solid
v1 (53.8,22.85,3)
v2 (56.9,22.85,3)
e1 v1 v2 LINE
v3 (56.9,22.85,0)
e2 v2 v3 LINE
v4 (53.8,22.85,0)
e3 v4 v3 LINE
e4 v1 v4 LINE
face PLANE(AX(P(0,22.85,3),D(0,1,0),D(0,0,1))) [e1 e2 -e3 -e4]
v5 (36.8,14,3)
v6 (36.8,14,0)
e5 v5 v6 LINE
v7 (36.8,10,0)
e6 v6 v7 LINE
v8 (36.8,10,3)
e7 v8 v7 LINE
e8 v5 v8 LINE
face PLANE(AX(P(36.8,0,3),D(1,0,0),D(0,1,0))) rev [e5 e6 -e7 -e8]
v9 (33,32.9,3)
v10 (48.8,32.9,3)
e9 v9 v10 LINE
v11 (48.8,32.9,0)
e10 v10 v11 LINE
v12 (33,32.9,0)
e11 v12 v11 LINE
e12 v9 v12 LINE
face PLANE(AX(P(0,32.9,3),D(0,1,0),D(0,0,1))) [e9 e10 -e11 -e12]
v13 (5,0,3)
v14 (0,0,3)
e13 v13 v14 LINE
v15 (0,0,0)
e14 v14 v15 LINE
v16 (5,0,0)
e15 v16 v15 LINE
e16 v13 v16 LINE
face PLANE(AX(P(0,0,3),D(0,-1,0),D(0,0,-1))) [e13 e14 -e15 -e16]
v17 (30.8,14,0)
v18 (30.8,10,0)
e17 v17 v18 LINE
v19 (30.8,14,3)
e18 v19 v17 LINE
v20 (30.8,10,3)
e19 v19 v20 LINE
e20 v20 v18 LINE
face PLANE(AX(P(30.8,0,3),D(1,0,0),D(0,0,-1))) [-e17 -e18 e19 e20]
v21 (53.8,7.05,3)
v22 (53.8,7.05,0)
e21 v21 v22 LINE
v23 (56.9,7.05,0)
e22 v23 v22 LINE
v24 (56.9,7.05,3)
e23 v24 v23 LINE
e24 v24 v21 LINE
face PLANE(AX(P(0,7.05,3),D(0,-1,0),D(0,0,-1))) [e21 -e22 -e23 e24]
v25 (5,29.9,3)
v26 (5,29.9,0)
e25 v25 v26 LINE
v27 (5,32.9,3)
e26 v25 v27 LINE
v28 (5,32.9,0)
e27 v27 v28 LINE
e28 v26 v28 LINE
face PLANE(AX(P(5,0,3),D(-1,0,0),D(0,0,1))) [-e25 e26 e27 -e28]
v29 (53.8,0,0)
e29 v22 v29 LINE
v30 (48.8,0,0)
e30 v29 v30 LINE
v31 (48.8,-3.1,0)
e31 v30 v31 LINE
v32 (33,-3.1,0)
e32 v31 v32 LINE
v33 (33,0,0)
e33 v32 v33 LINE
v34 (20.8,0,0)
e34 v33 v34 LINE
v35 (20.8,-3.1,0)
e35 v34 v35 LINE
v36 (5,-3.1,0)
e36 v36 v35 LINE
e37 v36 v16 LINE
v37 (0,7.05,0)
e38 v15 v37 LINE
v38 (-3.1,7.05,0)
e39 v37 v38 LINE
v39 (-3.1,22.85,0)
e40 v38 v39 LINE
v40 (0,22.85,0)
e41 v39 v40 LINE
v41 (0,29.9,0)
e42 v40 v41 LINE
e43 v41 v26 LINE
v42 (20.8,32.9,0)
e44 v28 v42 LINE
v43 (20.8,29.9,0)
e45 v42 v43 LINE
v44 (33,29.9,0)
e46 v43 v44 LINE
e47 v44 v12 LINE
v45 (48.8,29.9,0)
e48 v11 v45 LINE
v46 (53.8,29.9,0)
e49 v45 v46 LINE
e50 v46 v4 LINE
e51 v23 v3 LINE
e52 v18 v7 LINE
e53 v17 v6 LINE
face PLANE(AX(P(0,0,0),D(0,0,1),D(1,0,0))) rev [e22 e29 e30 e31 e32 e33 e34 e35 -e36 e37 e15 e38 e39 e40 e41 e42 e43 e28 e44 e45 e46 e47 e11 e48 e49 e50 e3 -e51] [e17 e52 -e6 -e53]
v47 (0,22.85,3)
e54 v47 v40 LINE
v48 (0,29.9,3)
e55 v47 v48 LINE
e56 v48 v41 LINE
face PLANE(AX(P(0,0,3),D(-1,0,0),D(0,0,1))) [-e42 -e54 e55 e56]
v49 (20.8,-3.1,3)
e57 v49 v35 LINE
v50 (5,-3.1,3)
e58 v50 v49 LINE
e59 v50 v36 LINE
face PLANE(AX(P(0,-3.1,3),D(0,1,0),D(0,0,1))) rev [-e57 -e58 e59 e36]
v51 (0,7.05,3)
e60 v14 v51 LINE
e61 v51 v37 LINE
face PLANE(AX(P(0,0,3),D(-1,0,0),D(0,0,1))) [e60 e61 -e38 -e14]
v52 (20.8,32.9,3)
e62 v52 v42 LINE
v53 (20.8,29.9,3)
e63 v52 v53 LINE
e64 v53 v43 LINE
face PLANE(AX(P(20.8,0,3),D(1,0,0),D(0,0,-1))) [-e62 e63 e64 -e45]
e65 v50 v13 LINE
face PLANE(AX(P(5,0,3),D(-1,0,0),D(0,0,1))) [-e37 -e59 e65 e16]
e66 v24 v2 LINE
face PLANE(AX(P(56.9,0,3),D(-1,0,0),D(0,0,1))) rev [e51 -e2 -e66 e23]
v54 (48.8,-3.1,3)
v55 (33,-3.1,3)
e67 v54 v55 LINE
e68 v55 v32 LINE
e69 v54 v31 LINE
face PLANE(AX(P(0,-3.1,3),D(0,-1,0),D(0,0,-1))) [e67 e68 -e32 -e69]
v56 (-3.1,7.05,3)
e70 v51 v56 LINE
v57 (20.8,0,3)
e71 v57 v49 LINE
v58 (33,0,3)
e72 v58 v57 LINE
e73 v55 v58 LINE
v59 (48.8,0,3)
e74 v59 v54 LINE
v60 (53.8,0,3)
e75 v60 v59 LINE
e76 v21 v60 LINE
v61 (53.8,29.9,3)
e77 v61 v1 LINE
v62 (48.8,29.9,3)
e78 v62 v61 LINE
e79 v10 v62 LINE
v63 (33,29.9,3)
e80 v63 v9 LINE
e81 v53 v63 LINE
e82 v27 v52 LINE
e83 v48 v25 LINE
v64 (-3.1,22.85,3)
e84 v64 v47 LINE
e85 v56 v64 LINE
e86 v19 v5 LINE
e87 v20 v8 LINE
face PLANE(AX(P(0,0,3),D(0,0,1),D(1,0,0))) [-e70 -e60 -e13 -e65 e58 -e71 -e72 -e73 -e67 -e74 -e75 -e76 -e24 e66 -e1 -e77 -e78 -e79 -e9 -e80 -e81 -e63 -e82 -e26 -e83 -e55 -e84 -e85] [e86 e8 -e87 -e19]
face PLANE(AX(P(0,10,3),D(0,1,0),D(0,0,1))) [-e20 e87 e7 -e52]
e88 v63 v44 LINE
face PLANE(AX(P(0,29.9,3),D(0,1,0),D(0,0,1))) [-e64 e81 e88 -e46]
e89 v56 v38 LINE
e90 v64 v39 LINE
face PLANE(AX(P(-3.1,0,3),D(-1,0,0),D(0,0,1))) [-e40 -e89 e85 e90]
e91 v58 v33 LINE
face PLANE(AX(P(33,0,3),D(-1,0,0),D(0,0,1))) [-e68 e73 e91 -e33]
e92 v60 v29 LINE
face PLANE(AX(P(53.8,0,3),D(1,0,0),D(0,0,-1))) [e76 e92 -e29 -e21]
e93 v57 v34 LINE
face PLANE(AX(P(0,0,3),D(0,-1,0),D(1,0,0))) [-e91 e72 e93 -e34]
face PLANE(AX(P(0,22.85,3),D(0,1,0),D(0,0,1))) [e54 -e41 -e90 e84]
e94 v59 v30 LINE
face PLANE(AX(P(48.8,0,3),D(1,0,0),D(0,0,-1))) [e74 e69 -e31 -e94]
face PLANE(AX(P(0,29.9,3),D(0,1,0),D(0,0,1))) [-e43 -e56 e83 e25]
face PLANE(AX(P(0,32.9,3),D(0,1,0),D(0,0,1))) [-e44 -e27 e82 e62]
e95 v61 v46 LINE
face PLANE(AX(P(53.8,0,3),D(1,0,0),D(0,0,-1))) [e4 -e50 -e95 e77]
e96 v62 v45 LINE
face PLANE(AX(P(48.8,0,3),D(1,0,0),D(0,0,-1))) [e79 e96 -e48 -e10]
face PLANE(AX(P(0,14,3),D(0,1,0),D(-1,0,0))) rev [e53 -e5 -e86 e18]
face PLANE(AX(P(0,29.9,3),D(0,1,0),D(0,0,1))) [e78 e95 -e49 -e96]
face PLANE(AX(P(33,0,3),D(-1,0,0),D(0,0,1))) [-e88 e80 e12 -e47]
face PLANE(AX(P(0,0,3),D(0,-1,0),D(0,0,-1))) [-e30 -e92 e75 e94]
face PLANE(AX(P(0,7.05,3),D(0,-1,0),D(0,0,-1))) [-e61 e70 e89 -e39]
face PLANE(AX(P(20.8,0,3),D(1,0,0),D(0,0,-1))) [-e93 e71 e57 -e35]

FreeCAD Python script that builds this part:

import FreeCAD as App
import Part
import Sketcher

V = App.Vector

doc = App.newDocument("Part")
body = doc.addObject("PartDesign::Body", "Body")

sketch1 = doc.addObject("Sketcher::SketchObject", "Sketch")
body.addObject(sketch1)
sketch1.AttachmentSupport = (doc.XY_Plane, [""])
sketch1.MapMode = "FlatFace"
sketch1.addGeometry([
    Part.LineSegment(V(5, 29.9, 0), V(0, 29.9, 0)),
    Part.LineSegment(V(0, 29.9, 0), V(0, 22.9, 0)),
    Part.LineSegment(V(0, 22.9, 0), V(-3.1, 22.9, 0)),
    Part.LineSegment(V(-3.1, 22.9, 0), V(-3.1, 7, 0)),
    Part.LineSegment(V(-3.1, 7, 0), V(0, 7, 0)),
    Part.LineSegment(V(0, 7, 0), V(0, 0, 0)),
    Part.LineSegment(V(0, 0, 0), V(5, 0, 0)),
    Part.LineSegment(V(5, 0, 0), V(5, -3.1, 0)),
    Part.LineSegment(V(5, -3.1, 0), V(20.8, -3.1, 0)),
    Part.LineSegment(V(20.8, -3.1, 0), V(20.8, 0, 0)),
    Part.LineSegment(V(20.8, 0, 0), V(33, 0, 0)),
    Part.LineSegment(V(33, 0, 0), V(33, -3.1, 0)),
    Part.LineSegment(V(33, -3.1, 0), V(48.8, -3.1, 0)),
    Part.LineSegment(V(48.8, -3.1, 0), V(48.8, 0, 0)),
    Part.LineSegment(V(48.8, 0, 0), V(53.8, 0, 0)),
    Part.LineSegment(V(53.8, 0, 0), V(53.8, 7, 0)),
    Part.LineSegment(V(53.8, 7, 0), V(56.9, 7, 0)),
    Part.LineSegment(V(56.9, 7, 0), V(56.9, 22.9, 0)),
    Part.LineSegment(V(56.9, 22.9, 0), V(53.8, 22.9, 0)),
    Part.LineSegment(V(53.8, 22.9, 0), V(53.8, 29.9, 0)),
    Part.LineSegment(V(53.8, 29.9, 0), V(48.8, 29.9, 0)),
    Part.LineSegment(V(48.8, 29.9, 0), V(48.8, 32.9, 0)),
    Part.LineSegment(V(48.8, 32.9, 0), V(33, 32.9, 0)),
    Part.LineSegment(V(33, 32.9, 0), V(33, 29.9, 0)),
    Part.LineSegment(V(33, 29.9, 0), V(20.8, 29.9, 0)),
    Part.LineSegment(V(20.8, 29.9, 0), V(20.8, 32.9, 0)),
    Part.LineSegment(V(20.8, 32.9, 0), V(5, 32.9, 0)),
    Part.LineSegment(V(5, 32.9, 0), V(5, 29.9, 0)),
    Part.LineSegment(V(30.8, 10, 0), V(30.8, 14, 0)),
    Part.LineSegment(V(30.8, 14, 0), V(36.8, 14, 0)),
    Part.LineSegment(V(36.8, 14, 0), V(36.8, 10, 0)),
    Part.LineSegment(V(36.8, 10, 0), V(30.8, 10, 0)),
], False)
sketch1.addConstraint([
    Sketcher.Constraint("Coincident", 0, 2, 1, 1),
    Sketcher.Constraint("Coincident", 1, 2, 2, 1),
    Sketcher.Constraint("Coincident", 2, 2, 3, 1),
    Sketcher.Constraint("Coincident", 3, 2, 4, 1),
    Sketcher.Constraint("Coincident", 4, 2, 5, 1),
    Sketcher.Constraint("Coincident", 5, 2, 6, 1),
    Sketcher.Constraint("Coincident", 6, 2, 7, 1),
    Sketcher.Constraint("Coincident", 7, 2, 8, 1),
    Sketcher.Constraint("Coincident", 8, 2, 9, 1),
    Sketcher.Constraint("Coincident", 9, 2, 10, 1),
    Sketcher.Constraint("Coincident", 10, 2, 11, 1),
    Sketcher.Constraint("Coincident", 11, 2, 12, 1),
    Sketcher.Constraint("Coincident", 12, 2, 13, 1),
    Sketcher.Constraint("Coincident", 13, 2, 14, 1),
    Sketcher.Constraint("Coincident", 14, 2, 15, 1),
    Sketcher.Constraint("Coincident", 15, 2, 16, 1),
    Sketcher.Constraint("Coincident", 16, 2, 17, 1),
    Sketcher.Constraint("Coincident", 17, 2, 18, 1),
    Sketcher.Constraint("Coincident", 18, 2, 19, 1),
    Sketcher.Constraint("Coincident", 19, 2, 20, 1),
    Sketcher.Constraint("Coincident", 20, 2, 21, 1),
    Sketcher.Constraint("Coincident", 21, 2, 22, 1),
    Sketcher.Constraint("Coincident", 22, 2, 23, 1),
    Sketcher.Constraint("Coincident", 23, 2, 24, 1),
    Sketcher.Constraint("Coincident", 24, 2, 25, 1),
    Sketcher.Constraint("Coincident", 25, 2, 26, 1),
    Sketcher.Constraint("Coincident", 26, 2, 27, 1),
    Sketcher.Constraint("Coincident", 27, 2, 0, 1),
    Sketcher.Constraint("Coincident", 28, 2, 29, 1),
    Sketcher.Constraint("Coincident", 29, 2, 30, 1),
    Sketcher.Constraint("Coincident", 30, 2, 31, 1),
    Sketcher.Constraint("Coincident", 31, 2, 28, 1),
    Sketcher.Constraint("Horizontal", 0),
    Sketcher.Constraint("Vertical", 1),
    Sketcher.Constraint("Horizontal", 2),
    Sketcher.Constraint("Vertical", 3),
    Sketcher.Constraint("Horizontal", 4),
    Sketcher.Constraint("Vertical", 5),
    Sketcher.Constraint("Horizontal", 6),
    Sketcher.Constraint("Vertical", 7),
    Sketcher.Constraint("Horizontal", 8),
    Sketcher.Constraint("Vertical", 9),
    Sketcher.Constraint("Horizontal", 10),
    Sketcher.Constraint("Vertical", 11),
    Sketcher.Constraint("Horizontal", 12),
    Sketcher.Constraint("Vertical", 13),
    Sketcher.Constraint("Horizontal", 14),
    Sketcher.Constraint("Vertical", 15),
    Sketcher.Constraint("Horizontal", 16),
    Sketcher.Constraint("Vertical", 17),
    Sketcher.Constraint("Horizontal", 18),
    Sketcher.Constraint("Vertical", 19),
    Sketcher.Constraint("Horizontal", 20),
    Sketcher.Constraint("Vertical", 21),
    Sketcher.Constraint("Horizontal", 22),
    Sketcher.Constraint("Vertical", 23),
    Sketcher.Constraint("Horizontal", 24),
    Sketcher.Constraint("Vertical", 25),
    Sketcher.Constraint("Horizontal", 26),
    Sketcher.Constraint("Vertical", 27),
    Sketcher.Constraint("Vertical", 28),
    Sketcher.Constraint("Horizontal", 29),
    Sketcher.Constraint("Vertical", 30),
    Sketcher.Constraint("Horizontal", 31),
    Sketcher.Constraint("Coincident", 5, 2, -1, 1),
    Sketcher.Constraint("PointOnObject", 0, 2, -2),
    Sketcher.Constraint("PointOnObject", 9, 2, -1),
    Sketcher.Constraint("PointOnObject", 13, 2, -1),
    Sketcher.Constraint("Horizontal", 8, 2, 11, 2),
    Sketcher.Constraint("Horizontal", 4, 2, 15, 2),
    Sketcher.Constraint("Horizontal", 2, 2, 17, 2),
    Sketcher.Constraint("Horizontal", 0, 2, 19, 2),
    Sketcher.Constraint("Horizontal", 20, 2, 23, 2),
    Sketcher.Constraint("Horizontal", 22, 2, 25, 2),
    Sketcher.Constraint("Vertical", 15, 2, 18, 2),
    Sketcher.Constraint("Vertical", 13, 2, 20, 2),
    Sketcher.Constraint("Vertical", 11, 2, 22, 2),
    Sketcher.Constraint("Vertical", 9, 2, 24, 2),
    Sketcher.Constraint("Vertical", 7, 2, 26, 2),
    Sketcher.Constraint("Equal", 8, 12),
    Sketcher.Constraint("Equal", 6, 14),
    Sketcher.Constraint("Equal", 4, 16),
    Sketcher.Constraint("Equal", 26, 3),
    Sketcher.Constraint("Equal", 1, 5),
    Sketcher.Constraint("Equal", 18, 7),
    Sketcher.Constraint("DistanceX", 0, 2, 0, 1, 5.0),
    Sketcher.Constraint("DistanceX", 29, 1, 29, 2, 6.0),
    Sketcher.Constraint("DistanceY", 21, 1, 21, 2, 3.0),
    Sketcher.Constraint("DistanceY", 28, 1, 28, 2, 4.0),
    Sketcher.Constraint("DistanceX", 2, 2, 2, 1, 3.1),
    Sketcher.Constraint("DistanceX", 8, 1, 8, 2, 15.8),
    Sketcher.Constraint("DistanceX", 10, 1, 10, 2, 12.2),
    Sketcher.Constraint("DistanceY", -1, 1, 28, 2, 14.0),
    Sketcher.Constraint("DistanceX", 9, 2, 28, 2, 10.0),
    Sketcher.Constraint("DistanceY", 1, 2, 1, 1, 7.05),
])
pad1 = doc.addObject("PartDesign::Pad", "Pad")
body.addObject(pad1)
pad1.Profile = sketch1
pad1.Length = 3

doc.recompute()
